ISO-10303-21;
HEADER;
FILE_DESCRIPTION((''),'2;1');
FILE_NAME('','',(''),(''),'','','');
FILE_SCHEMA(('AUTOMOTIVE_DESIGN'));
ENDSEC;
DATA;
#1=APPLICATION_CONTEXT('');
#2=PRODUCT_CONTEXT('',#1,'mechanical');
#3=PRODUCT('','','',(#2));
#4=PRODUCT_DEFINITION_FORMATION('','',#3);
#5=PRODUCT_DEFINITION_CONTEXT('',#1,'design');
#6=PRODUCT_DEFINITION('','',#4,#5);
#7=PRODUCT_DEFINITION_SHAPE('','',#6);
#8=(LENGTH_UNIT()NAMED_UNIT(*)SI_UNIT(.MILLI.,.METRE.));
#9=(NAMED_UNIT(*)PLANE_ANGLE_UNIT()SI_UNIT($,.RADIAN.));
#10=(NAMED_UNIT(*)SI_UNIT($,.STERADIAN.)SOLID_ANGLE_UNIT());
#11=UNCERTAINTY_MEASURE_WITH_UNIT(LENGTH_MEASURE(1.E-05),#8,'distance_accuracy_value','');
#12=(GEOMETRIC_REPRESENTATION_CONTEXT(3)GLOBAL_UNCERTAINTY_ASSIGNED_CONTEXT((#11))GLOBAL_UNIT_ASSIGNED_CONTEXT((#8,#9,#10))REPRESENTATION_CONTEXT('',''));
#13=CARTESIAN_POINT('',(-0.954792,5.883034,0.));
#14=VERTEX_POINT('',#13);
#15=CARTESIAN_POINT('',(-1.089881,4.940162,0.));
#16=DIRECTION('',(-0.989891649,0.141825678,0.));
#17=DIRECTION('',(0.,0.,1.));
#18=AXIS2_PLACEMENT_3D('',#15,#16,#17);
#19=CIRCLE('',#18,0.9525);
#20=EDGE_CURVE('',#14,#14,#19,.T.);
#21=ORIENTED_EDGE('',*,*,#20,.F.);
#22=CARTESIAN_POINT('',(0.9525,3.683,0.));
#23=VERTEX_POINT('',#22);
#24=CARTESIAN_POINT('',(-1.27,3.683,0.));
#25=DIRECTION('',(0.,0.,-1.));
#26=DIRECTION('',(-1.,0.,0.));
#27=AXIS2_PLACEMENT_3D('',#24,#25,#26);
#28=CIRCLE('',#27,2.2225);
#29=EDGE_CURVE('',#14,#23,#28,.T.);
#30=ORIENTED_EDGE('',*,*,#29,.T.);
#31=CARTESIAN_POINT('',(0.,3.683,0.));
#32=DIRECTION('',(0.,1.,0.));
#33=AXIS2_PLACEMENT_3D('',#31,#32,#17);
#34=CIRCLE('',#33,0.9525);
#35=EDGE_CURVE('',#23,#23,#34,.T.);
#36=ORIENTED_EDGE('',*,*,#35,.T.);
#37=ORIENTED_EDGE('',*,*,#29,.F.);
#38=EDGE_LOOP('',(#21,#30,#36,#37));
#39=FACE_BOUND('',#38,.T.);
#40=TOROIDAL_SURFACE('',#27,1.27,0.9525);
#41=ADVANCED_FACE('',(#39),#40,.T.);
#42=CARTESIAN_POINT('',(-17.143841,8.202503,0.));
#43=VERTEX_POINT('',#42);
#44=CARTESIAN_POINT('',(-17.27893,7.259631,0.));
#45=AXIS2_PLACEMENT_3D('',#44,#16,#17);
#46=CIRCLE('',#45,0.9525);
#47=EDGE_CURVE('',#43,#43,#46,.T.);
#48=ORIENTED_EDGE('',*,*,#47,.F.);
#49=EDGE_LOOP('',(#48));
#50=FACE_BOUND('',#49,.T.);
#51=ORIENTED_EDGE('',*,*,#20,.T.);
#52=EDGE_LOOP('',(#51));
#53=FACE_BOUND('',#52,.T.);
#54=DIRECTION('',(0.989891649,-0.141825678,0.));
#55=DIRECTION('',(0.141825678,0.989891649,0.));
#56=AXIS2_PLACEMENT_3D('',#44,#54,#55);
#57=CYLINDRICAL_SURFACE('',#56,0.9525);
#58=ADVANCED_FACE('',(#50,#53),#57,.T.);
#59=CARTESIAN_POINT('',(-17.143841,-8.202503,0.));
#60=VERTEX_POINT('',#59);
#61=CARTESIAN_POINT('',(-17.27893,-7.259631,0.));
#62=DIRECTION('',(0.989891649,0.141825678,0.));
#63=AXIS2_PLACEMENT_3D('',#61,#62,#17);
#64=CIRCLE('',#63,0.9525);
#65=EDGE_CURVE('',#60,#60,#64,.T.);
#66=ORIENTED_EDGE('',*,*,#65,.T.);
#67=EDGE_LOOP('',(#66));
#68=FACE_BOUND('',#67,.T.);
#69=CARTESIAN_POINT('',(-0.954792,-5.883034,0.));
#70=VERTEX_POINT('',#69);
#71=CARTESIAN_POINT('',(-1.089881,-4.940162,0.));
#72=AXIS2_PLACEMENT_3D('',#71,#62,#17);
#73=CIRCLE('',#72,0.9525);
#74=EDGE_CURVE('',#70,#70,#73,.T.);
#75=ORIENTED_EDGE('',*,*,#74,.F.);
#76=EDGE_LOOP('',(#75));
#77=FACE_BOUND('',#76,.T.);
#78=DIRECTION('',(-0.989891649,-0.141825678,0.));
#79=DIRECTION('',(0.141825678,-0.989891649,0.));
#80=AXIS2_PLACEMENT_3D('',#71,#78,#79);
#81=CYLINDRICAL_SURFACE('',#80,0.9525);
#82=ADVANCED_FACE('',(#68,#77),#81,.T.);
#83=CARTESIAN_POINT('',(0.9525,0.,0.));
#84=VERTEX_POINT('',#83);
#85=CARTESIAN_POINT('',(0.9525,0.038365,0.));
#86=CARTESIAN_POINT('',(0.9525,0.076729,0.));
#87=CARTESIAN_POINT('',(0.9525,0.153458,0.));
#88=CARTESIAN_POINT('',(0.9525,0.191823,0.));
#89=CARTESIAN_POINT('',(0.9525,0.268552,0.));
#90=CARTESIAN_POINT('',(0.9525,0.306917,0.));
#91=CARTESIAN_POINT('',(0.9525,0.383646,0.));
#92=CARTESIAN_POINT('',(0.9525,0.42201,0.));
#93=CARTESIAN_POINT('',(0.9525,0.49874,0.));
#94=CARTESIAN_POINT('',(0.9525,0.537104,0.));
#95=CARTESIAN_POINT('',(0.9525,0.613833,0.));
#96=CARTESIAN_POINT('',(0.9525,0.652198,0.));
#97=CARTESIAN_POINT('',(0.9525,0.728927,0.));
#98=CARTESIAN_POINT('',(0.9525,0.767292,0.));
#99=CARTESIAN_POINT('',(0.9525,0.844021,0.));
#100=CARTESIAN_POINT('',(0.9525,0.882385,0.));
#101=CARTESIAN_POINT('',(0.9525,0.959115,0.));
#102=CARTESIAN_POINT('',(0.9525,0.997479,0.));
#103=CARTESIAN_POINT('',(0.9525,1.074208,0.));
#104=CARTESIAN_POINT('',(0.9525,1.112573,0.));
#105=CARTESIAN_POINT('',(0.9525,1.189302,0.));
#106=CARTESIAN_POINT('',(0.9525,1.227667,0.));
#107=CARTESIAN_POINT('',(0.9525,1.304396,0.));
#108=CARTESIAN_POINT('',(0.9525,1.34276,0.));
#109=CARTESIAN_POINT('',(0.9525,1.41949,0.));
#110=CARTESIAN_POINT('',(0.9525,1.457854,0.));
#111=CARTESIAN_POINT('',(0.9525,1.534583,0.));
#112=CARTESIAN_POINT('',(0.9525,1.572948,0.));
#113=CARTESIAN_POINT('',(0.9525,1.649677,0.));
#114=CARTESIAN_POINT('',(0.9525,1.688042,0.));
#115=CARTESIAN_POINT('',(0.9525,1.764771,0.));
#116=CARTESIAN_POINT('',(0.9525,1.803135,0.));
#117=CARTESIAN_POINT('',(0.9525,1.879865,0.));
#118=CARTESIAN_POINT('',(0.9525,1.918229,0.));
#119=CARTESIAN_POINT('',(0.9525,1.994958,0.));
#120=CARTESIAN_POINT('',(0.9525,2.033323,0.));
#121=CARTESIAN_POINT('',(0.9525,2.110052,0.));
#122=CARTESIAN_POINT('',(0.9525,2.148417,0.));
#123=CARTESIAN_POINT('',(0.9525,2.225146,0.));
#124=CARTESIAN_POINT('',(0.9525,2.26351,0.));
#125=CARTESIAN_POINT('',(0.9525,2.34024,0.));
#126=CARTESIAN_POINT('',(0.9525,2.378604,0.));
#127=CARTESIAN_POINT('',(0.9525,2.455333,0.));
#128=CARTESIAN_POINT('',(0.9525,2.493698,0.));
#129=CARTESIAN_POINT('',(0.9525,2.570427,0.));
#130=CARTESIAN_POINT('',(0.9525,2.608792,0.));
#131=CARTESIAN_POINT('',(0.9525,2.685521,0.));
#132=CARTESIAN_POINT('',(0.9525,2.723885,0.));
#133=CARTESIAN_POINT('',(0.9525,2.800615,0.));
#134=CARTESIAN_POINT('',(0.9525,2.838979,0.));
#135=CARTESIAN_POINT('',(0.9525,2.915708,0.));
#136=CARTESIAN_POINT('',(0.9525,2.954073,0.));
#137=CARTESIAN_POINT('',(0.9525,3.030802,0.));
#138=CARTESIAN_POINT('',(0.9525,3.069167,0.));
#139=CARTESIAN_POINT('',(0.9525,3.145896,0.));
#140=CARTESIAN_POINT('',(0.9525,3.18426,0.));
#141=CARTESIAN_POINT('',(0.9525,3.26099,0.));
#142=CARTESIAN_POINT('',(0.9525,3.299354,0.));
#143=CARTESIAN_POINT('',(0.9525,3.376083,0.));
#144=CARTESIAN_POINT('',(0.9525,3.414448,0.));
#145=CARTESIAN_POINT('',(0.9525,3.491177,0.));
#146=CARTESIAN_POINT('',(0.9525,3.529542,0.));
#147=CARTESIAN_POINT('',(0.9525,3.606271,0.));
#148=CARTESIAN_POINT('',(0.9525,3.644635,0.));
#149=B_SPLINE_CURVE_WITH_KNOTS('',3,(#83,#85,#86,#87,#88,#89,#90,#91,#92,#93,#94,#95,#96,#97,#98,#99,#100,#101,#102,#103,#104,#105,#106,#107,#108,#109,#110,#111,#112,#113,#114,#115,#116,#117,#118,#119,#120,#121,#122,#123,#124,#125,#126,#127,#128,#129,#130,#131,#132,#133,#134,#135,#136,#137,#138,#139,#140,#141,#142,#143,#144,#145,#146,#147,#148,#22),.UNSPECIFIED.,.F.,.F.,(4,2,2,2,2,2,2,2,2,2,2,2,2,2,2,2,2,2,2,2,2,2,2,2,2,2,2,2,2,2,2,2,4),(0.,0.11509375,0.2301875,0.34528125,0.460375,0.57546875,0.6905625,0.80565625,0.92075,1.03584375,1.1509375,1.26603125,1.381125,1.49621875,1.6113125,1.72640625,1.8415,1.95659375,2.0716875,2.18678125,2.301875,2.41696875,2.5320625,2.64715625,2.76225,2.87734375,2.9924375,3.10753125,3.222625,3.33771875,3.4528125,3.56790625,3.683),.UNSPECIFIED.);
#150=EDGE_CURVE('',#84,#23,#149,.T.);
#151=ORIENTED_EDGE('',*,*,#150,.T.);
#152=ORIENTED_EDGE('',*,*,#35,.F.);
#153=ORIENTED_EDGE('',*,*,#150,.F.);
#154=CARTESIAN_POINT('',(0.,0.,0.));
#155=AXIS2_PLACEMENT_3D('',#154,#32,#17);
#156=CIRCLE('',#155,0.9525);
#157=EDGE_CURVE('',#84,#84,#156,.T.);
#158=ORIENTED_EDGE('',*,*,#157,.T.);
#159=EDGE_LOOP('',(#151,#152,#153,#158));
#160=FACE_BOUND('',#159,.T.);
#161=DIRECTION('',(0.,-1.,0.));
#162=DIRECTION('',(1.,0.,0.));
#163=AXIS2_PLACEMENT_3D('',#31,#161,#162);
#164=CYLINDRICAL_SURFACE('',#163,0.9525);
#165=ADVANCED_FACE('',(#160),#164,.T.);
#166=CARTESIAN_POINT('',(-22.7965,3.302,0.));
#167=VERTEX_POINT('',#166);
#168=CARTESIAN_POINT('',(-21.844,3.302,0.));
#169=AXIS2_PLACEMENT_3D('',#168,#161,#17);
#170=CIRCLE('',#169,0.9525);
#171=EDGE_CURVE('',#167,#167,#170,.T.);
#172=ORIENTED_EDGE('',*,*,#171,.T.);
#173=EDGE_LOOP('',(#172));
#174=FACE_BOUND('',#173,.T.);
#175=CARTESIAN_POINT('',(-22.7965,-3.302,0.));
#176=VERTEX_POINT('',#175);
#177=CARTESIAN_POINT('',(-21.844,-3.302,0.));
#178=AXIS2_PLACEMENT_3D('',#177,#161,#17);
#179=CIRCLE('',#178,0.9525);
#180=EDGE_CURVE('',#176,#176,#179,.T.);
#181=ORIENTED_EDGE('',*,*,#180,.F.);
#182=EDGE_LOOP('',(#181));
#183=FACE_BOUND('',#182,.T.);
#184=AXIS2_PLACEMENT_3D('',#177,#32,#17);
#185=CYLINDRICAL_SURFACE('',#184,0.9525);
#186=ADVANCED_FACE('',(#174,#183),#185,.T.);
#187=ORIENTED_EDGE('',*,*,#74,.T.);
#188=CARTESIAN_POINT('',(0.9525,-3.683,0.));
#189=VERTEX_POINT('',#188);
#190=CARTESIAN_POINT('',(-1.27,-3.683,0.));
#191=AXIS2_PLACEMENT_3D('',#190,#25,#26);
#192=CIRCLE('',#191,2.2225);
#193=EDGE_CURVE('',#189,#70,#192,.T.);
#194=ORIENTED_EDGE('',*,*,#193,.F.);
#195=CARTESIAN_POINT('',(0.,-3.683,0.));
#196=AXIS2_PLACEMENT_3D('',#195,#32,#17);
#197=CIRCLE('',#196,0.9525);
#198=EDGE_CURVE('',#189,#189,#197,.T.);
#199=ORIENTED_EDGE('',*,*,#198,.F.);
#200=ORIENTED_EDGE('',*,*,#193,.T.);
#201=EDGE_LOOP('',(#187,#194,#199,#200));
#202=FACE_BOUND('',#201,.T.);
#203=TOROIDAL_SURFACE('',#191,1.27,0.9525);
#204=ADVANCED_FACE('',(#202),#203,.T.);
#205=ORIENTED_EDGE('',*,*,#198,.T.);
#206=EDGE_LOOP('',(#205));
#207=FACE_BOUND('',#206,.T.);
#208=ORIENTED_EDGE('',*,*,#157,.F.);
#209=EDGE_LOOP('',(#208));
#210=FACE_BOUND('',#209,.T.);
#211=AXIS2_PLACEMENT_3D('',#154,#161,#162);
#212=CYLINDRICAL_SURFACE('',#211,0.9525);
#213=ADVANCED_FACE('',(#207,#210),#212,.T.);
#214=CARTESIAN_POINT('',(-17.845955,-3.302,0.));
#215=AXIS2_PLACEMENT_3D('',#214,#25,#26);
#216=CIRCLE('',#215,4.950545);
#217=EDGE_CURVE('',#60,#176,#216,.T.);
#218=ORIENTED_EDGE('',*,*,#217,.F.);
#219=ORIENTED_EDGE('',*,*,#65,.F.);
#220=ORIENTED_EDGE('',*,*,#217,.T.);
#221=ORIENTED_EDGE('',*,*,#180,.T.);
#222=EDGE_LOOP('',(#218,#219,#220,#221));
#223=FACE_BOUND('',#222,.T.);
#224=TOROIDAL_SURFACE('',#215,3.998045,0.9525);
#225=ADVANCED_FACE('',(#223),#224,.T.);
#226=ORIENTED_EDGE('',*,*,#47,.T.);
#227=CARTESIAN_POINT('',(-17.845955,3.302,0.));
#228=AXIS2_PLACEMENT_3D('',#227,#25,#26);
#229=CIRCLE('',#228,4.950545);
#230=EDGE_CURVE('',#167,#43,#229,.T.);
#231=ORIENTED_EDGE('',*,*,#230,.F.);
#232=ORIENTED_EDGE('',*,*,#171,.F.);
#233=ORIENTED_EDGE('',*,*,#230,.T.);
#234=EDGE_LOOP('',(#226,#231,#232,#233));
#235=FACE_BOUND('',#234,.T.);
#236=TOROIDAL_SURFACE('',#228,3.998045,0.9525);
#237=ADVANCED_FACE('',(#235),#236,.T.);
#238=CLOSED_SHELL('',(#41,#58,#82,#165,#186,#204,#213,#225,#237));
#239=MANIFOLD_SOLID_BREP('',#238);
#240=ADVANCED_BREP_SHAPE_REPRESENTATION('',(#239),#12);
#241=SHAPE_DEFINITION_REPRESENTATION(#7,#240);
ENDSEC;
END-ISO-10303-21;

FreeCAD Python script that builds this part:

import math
import FreeCAD as App
import Part
import Sketcher
from FreeCAD import Vector
Q = App.Units.Quantity

doc = App.newDocument("Part")
body = doc.addObject("PartDesign::Body", "Body")

# Sketch on XZ plane
sketch1 = body.newObject("Sketcher::SketchObject", "Sketch")
sketch1.AttachmentSupport = (doc.getObject("XZ_Plane"), [""])
sketch1.MapMode = "FlatFace"
sketch1.addGeometry(Part.Circle(Vector(0, 0, 0), Vector(0, 0, 1), 1), False)
sketch1.addConstraint(Sketcher.Constraint("Coincident", 0, 3, -1, 1))
sketch1.addConstraint(Sketcher.Constraint("Diameter", 0, Q("0.075 in")))

# Sketch on XY plane
sketch2 = body.newObject("Sketcher::SketchObject", "Sketch001")
sketch2.AttachmentSupport = (doc.getObject("XY_Plane"), [""])
sketch2.MapMode = "FlatFace"
sketch2.addGeometry(Part.LineSegment(Vector(0, 3.7, 0), Vector(0, -3.7, 0)), False)
sketch2.addGeometry(Part.ArcOfCircle(Part.Circle(Vector(-1.3, -3.7, 0), Vector(0, 0, 1), 1.3), math.radians(-82), math.radians(0)), False)
sketch2.addGeometry(Part.LineSegment(Vector(-1.1, -4.9, 0), Vector(-17.3, -7.3, 0)), False)
sketch2.addGeometry(Part.ArcOfCircle(Part.Circle(Vector(-17.8, -3.3, 0), Vector(0, 0, 1), 4), math.radians(180), math.radians(278)), False)
sketch2.addGeometry(Part.LineSegment(Vector(-21.8, -3.3, 0), Vector(-21.8, 3.3, 0)), False)
sketch2.addGeometry(Part.ArcOfCircle(Part.Circle(Vector(-17.8, 3.3, 0), Vector(0, 0, 1), 4), math.radians(82), math.radians(180)), False)
sketch2.addGeometry(Part.LineSegment(Vector(-17.3, 7.3, 0), Vector(-1.1, 4.9, 0)), False)
sketch2.addGeometry(Part.ArcOfCircle(Part.Circle(Vector(-1.3, 3.7, 0), Vector(0, 0, 1), 1.3), math.radians(0), math.radians(82)), False)
sketch2.addConstraint(Sketcher.Constraint("Tangent", 0, 2, 1, 2))
sketch2.addConstraint(Sketcher.Constraint("Tangent", 1, 1, 2, 1))
sketch2.addConstraint(Sketcher.Constraint("Tangent", 2, 2, 3, 2))
sketch2.addConstraint(Sketcher.Constraint("Tangent", 3, 1, 4, 1))
sketch2.addConstraint(Sketcher.Constraint("Tangent", 4, 2, 5, 2))
sketch2.addConstraint(Sketcher.Constraint("Tangent", 5, 1, 6, 1))
sketch2.addConstraint(Sketcher.Constraint("Tangent", 6, 2, 7, 2))
sketch2.addConstraint(Sketcher.Constraint("Tangent", 7, 1, 0, 1))
sketch2.addConstraint(Sketcher.Constraint("Vertical", 0))
sketch2.addConstraint(Sketcher.Constraint("Vertical", 4))
sketch2.addConstraint(Sketcher.Constraint("Equal", 3, 5))
sketch2.addConstraint(Sketcher.Constraint("Equal", 1, 7))
sketch2.addConstraint(Sketcher.Constraint("Symmetric", 0, 2, 7, 1, -1, 1))
sketch2.addConstraint(Sketcher.Constraint("Vertical", 2, 2, 5, 1))
sketch2.addConstraint(Sketcher.Constraint("Radius", 1, Q("0.05 in")))
sketch2.addConstraint(Sketcher.Constraint("DistanceY", 0, 2, 0, 1, Q("0.29 in")))
sketch2.addConstraint(Sketcher.Constraint("DistanceY", 4, 1, 4, 2, Q("0.26 in")))
sketch2.addConstraint(Sketcher.Constraint("DistanceX", 3, 1, -1, 1, Q("0.86 in")))
sketch2.addConstraint(Sketcher.Constraint("Radius", 3, 3.998045))
doc.recompute()

additivepipe = body.newObject("PartDesign::AdditivePipe", "AdditivePipe")
additivepipe.Profile = sketch1
additivepipe.Spine = (sketch2, ["Edge1", "Edge2", "Edge3", "Edge4", "Edge5", "Edge6", "Edge7", "Edge8"])

doc.recompute()
